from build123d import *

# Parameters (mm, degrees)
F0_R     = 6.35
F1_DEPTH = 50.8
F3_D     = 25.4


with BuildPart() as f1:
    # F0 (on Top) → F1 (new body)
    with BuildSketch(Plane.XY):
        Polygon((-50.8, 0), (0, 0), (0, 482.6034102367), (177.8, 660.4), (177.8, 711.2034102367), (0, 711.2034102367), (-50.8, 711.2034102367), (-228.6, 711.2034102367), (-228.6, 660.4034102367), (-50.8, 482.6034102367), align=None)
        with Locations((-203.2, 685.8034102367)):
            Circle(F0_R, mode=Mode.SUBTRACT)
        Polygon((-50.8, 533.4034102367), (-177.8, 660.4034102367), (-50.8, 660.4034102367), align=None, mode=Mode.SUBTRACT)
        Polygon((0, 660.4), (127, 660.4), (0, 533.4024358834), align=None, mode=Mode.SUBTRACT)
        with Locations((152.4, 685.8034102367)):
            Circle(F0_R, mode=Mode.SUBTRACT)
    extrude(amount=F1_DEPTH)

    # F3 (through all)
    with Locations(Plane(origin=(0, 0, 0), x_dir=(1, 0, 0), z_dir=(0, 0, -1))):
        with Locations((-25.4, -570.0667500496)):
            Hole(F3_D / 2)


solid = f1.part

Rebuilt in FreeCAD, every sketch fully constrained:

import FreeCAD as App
import Part
import Sketcher
from FreeCAD import Vector
Q = App.Units.Quantity

doc = App.newDocument("Part")
body = doc.addObject("PartDesign::Body", "Body")

# Sketch on XY plane
sketch1 = body.newObject("Sketcher::SketchObject", "Sketch")
sketch1.AttachmentSupport = (doc.getObject("XY_Plane"), [""])
sketch1.MapMode = "FlatFace"
sketch1.addGeometry([
    Part.LineSegment(Vector(-51, 0, 0), Vector(0, 0, 0)),  # 0
    Part.LineSegment(Vector(0, 0, 0), Vector(0, 483, 0)),  # 1
    Part.LineSegment(Vector(0, 483, 0), Vector(178, 660, 0)),  # 2
    Part.LineSegment(Vector(178, 660, 0), Vector(178, 711, 0)),  # 3
    Part.LineSegment(Vector(178, 711, 0), Vector(-229, 711, 0)),  # 4
    Part.LineSegment(Vector(-229, 711, 0), Vector(-229, 660, 0)),  # 5
    Part.LineSegment(Vector(-229, 660, 0), Vector(-51, 483, 0)),  # 6
    Part.LineSegment(Vector(-51, 483, 0), Vector(-51, 0, 0)),  # 7
    Part.LineSegment(Vector(-51, 660, 0), Vector(-51, 533, 0)),  # 8
    Part.LineSegment(Vector(-51, 533, 0), Vector(-178, 660, 0)),  # 9
    Part.LineSegment(Vector(-178, 660, 0), Vector(-51, 660, 0)),  # 10
    Part.LineSegment(Vector(0, 533, 0), Vector(0, 660, 0)),  # 11
    Part.LineSegment(Vector(0, 660, 0), Vector(127, 660, 0)),  # 12
    Part.LineSegment(Vector(127, 660, 0), Vector(0, 533, 0)),  # 13
    Part.Circle(Vector(-203, 686, 0), Vector(0, 0, 1), 6),  # 14
    Part.Circle(Vector(152, 686, 0), Vector(0, 0, 1), 6),  # 15
], False)
sketch1.addConstraint([
    Sketcher.Constraint("Coincident", 0, 2, 1, 1),
    Sketcher.Constraint("Coincident", 1, 2, 2, 1),
    Sketcher.Constraint("Coincident", 2, 2, 3, 1),
    Sketcher.Constraint("Coincident", 3, 2, 4, 1),
    Sketcher.Constraint("Coincident", 4, 2, 5, 1),
    Sketcher.Constraint("Coincident", 5, 2, 6, 1),
    Sketcher.Constraint("Coincident", 6, 2, 7, 1),
    Sketcher.Constraint("Coincident", 7, 2, 0, 1),
    Sketcher.Constraint("Coincident", 8, 2, 9, 1),
    Sketcher.Constraint("Coincident", 9, 2, 10, 1),
    Sketcher.Constraint("Coincident", 10, 2, 8, 1),
    Sketcher.Constraint("Coincident", 11, 2, 12, 1),
    Sketcher.Constraint("Coincident", 12, 2, 13, 1),
    Sketcher.Constraint("Coincident", 13, 2, 11, 1),
    Sketcher.Constraint("Horizontal", 0),
    Sketcher.Constraint("Vertical", 1),
    Sketcher.Constraint("Vertical", 3),
    Sketcher.Constraint("Horizontal", 4),
    Sketcher.Constraint("Vertical", 5),
    Sketcher.Constraint("Vertical", 7),
    Sketcher.Constraint("Vertical", 8),
    Sketcher.Constraint("Horizontal", 10),
    Sketcher.Constraint("Vertical", 11),
    Sketcher.Constraint("Horizontal", 12),
    Sketcher.Constraint("Coincident", 0, 2, -1, 1),
    Sketcher.Constraint("Equal", 14, 15),
    Sketcher.Constraint("PointOnObject", 11, 2, -2),
    Sketcher.Constraint("Parallel", 6, 9),
    Sketcher.Constraint("Parallel", 2, 13),
    Sketcher.Constraint("Horizontal", 14, 3, 15, 3),
    Sketcher.Constraint("Horizontal", 1, 2, 6, 2),
    Sketcher.Constraint("Horizontal", 5, 2, 9, 2),
    Sketcher.Constraint("Horizontal", 2, 2, 11, 2),
    Sketcher.Constraint("Vertical", 7, 2, 8, 2),
    Sketcher.Constraint("Equal", 10, 12),
    Sketcher.Constraint("Equal", 0, 5),
    Sketcher.Constraint("Equal", 12, 8),
    Sketcher.Constraint("Diameter", 14, Q("0.5 in")),
    Sketcher.Constraint("DistanceX", 0, 1, 0, 2, Q("2 in")),
    Sketcher.Constraint("DistanceX", 4, 2, 4, 1, Q("16 in")),
    Sketcher.Constraint("DistanceX", 10, 1, 10, 2, Q("5 in")),
    Sketcher.Constraint("DistanceX", 14, 3, -1, 1, Q("8 in")),
    Sketcher.Constraint("DistanceX", -1, 1, 15, 3, Q("6 in")),
    Sketcher.Constraint("DistanceX", -1, 1, 2, 2, Q("7 in")),
    Sketcher.Constraint("DistanceY", -1, 1, 2, 2, Q("26 in")),
    Sketcher.Constraint("DistanceY", 1, 2, 15, 3, Q("8 in")),
    Sketcher.Constraint("Distance", 13, Q("7.071 in")),
])
pad1 = body.newObject("PartDesign::Pad", "Pad")
pad1.Profile = sketch1
pad1.Length = Q("2 in")

# Sketch on XY plane
sketch2 = body.newObject("Sketcher::SketchObject", "Sketch001")
sketch2.AttachmentSupport = (doc.getObject("XY_Plane"), [""])
sketch2.MapMode = "FlatFace"
sketch2.addGeometry(Part.Circle(Vector(-25, 570, 0), Vector(0, 0, 1), 13), False)
sketch2.addConstraint([
    Sketcher.Constraint("Diameter", 0, Q("1 in")),
    Sketcher.Constraint("DistanceX", 0, 3, -1, 1, Q("1 in")),
    Sketcher.Constraint("DistanceY", -1, 1, 0, 3, 570.06675),
])
doc.recompute()
hole = body.newObject("PartDesign::Hole", "Hole")
hole.Profile = sketch2
hole.ThreadType = "None"
hole.Diameter = Q("1 in")
hole.DepthType = "ThroughAll"
hole.Reversed = True

doc.recompute()
